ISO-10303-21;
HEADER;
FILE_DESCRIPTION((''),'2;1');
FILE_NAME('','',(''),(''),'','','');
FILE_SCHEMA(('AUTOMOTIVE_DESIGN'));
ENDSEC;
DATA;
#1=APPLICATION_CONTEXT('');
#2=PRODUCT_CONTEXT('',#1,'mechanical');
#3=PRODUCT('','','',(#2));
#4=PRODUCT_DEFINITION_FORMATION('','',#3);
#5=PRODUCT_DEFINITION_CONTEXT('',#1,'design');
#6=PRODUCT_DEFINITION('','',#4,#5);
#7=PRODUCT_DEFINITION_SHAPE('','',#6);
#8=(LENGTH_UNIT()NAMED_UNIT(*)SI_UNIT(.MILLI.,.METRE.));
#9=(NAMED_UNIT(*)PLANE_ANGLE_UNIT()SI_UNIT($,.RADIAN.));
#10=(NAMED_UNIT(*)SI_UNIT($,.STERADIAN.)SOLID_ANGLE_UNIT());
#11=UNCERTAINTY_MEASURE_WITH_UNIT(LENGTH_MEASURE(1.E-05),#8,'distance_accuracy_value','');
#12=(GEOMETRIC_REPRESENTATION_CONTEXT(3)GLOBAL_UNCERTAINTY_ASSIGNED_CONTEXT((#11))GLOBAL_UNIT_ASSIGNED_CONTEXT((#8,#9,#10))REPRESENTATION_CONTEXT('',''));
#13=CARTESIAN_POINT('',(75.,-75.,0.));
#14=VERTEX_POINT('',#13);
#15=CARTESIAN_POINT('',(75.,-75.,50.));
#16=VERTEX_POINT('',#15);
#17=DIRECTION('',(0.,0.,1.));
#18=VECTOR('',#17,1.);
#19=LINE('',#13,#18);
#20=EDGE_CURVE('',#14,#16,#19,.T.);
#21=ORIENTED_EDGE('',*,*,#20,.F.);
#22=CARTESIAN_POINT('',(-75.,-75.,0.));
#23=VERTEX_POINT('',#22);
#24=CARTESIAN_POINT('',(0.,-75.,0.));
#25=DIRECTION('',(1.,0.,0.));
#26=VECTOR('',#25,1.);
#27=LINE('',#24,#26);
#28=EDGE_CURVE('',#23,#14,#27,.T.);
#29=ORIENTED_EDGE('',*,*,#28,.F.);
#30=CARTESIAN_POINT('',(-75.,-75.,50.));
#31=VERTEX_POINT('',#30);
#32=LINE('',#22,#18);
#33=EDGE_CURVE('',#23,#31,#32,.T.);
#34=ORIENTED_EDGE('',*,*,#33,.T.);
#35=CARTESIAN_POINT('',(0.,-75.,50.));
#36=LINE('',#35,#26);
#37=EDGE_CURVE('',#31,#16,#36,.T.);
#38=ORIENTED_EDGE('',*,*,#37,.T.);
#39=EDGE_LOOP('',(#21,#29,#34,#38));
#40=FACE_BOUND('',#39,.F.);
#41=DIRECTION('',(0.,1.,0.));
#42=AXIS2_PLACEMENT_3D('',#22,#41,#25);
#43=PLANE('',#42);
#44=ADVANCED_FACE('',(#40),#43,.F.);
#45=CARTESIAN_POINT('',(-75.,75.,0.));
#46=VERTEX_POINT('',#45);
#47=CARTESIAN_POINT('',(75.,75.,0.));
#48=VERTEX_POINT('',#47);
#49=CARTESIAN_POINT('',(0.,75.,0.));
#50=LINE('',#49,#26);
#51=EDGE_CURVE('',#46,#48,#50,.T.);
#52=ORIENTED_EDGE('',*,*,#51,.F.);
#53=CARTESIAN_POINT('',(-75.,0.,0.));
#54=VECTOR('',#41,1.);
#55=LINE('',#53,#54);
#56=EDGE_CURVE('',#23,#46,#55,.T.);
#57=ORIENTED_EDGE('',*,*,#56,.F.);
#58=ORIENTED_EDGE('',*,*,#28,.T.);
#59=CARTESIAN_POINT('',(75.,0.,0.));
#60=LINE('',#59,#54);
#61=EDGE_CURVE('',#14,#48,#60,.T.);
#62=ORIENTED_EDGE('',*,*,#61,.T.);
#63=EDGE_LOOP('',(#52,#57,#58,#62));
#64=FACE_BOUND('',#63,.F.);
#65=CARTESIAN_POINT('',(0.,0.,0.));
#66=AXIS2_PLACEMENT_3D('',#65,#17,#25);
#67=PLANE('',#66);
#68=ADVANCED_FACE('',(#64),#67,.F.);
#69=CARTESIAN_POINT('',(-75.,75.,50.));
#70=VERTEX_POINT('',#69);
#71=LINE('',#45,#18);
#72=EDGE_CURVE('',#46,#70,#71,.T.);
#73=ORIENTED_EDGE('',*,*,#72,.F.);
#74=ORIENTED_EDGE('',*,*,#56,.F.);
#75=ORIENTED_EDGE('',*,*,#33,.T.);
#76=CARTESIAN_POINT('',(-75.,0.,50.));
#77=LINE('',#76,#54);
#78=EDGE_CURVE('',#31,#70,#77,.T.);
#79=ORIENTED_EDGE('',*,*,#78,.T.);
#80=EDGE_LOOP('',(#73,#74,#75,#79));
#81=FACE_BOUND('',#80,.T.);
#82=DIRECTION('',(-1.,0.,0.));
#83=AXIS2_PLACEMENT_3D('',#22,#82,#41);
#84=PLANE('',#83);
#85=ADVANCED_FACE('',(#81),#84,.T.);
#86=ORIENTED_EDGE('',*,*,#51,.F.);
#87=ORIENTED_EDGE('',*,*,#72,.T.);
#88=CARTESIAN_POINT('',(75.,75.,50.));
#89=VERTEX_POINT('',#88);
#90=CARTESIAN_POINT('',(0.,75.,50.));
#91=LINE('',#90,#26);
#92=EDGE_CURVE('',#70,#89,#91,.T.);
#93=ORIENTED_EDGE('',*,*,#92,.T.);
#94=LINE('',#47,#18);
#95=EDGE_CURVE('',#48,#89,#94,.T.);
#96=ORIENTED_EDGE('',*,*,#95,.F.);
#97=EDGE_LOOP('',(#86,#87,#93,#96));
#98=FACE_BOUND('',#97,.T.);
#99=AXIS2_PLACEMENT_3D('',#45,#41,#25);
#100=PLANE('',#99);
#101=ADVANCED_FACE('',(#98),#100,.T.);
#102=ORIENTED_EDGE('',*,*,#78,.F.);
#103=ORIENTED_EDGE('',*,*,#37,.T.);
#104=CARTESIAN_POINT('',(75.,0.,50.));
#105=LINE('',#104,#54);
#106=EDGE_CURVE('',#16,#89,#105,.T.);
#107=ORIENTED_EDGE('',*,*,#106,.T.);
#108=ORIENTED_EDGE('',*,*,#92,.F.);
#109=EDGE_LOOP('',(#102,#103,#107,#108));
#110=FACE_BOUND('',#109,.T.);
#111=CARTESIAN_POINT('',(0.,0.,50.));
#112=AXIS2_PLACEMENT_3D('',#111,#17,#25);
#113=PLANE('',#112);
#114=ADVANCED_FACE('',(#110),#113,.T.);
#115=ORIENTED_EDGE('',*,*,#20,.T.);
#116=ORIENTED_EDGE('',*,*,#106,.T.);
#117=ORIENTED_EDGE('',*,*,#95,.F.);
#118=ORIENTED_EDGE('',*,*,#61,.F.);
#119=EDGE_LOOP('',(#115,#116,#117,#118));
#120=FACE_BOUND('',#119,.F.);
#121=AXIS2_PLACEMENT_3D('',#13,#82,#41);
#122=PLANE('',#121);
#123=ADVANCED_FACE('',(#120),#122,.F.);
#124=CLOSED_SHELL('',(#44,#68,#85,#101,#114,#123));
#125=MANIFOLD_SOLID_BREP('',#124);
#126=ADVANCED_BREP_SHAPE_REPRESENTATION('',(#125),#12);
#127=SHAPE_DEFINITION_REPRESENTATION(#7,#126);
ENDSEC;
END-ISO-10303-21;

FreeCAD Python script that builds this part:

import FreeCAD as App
import Part
import Sketcher
from FreeCAD import Vector
Q = App.Units.Quantity


def add_polygon(sketch, points):
    """Adds a closed chain of lines whose ends are joined by coincident constraints."""
    first, n = sketch.GeometryCount, len(points)
    for a, b in zip(points, points[1:] + points[:1]):
        sketch.addGeometry(Part.LineSegment(App.Vector(*a, 0), App.Vector(*b, 0)), False)
    for i in range(n):
        sketch.addConstraint(Sketcher.Constraint("Coincident", first + i, 2, first + (i + 1) % n, 1))

doc = App.newDocument("Part")
body = doc.addObject("PartDesign::Body", "Body")

# Sketch on XY plane
sketch1 = doc.addObject("Sketcher::SketchObject", "Sketch")
body.addObject(sketch1)
sketch1.AttachmentSupport = (doc.XY_Plane, [""])
sketch1.MapMode = "FlatFace"
add_polygon(sketch1, [(-75, 75), (-75, -75), (75, -75), (75, 75)])  # lines 0-3
sketch1.addConstraint([
    Sketcher.Constraint("Vertical", 0),
    Sketcher.Constraint("Horizontal", 1),
    Sketcher.Constraint("Vertical", 2),
    Sketcher.Constraint("Horizontal", 3),
    Sketcher.Constraint("Symmetric", 0, 2, 2, 2, -1, 1),
    Sketcher.Constraint("Equal", 3, 0),
    Sketcher.Constraint("DistanceX", 1, 1, 1, 2, Q("150 mm")),
])
pad1 = doc.addObject("PartDesign::Pad", "Pad")
body.addObject(pad1)
pad1.Profile = sketch1
pad1.Length = 50

doc.recompute()
